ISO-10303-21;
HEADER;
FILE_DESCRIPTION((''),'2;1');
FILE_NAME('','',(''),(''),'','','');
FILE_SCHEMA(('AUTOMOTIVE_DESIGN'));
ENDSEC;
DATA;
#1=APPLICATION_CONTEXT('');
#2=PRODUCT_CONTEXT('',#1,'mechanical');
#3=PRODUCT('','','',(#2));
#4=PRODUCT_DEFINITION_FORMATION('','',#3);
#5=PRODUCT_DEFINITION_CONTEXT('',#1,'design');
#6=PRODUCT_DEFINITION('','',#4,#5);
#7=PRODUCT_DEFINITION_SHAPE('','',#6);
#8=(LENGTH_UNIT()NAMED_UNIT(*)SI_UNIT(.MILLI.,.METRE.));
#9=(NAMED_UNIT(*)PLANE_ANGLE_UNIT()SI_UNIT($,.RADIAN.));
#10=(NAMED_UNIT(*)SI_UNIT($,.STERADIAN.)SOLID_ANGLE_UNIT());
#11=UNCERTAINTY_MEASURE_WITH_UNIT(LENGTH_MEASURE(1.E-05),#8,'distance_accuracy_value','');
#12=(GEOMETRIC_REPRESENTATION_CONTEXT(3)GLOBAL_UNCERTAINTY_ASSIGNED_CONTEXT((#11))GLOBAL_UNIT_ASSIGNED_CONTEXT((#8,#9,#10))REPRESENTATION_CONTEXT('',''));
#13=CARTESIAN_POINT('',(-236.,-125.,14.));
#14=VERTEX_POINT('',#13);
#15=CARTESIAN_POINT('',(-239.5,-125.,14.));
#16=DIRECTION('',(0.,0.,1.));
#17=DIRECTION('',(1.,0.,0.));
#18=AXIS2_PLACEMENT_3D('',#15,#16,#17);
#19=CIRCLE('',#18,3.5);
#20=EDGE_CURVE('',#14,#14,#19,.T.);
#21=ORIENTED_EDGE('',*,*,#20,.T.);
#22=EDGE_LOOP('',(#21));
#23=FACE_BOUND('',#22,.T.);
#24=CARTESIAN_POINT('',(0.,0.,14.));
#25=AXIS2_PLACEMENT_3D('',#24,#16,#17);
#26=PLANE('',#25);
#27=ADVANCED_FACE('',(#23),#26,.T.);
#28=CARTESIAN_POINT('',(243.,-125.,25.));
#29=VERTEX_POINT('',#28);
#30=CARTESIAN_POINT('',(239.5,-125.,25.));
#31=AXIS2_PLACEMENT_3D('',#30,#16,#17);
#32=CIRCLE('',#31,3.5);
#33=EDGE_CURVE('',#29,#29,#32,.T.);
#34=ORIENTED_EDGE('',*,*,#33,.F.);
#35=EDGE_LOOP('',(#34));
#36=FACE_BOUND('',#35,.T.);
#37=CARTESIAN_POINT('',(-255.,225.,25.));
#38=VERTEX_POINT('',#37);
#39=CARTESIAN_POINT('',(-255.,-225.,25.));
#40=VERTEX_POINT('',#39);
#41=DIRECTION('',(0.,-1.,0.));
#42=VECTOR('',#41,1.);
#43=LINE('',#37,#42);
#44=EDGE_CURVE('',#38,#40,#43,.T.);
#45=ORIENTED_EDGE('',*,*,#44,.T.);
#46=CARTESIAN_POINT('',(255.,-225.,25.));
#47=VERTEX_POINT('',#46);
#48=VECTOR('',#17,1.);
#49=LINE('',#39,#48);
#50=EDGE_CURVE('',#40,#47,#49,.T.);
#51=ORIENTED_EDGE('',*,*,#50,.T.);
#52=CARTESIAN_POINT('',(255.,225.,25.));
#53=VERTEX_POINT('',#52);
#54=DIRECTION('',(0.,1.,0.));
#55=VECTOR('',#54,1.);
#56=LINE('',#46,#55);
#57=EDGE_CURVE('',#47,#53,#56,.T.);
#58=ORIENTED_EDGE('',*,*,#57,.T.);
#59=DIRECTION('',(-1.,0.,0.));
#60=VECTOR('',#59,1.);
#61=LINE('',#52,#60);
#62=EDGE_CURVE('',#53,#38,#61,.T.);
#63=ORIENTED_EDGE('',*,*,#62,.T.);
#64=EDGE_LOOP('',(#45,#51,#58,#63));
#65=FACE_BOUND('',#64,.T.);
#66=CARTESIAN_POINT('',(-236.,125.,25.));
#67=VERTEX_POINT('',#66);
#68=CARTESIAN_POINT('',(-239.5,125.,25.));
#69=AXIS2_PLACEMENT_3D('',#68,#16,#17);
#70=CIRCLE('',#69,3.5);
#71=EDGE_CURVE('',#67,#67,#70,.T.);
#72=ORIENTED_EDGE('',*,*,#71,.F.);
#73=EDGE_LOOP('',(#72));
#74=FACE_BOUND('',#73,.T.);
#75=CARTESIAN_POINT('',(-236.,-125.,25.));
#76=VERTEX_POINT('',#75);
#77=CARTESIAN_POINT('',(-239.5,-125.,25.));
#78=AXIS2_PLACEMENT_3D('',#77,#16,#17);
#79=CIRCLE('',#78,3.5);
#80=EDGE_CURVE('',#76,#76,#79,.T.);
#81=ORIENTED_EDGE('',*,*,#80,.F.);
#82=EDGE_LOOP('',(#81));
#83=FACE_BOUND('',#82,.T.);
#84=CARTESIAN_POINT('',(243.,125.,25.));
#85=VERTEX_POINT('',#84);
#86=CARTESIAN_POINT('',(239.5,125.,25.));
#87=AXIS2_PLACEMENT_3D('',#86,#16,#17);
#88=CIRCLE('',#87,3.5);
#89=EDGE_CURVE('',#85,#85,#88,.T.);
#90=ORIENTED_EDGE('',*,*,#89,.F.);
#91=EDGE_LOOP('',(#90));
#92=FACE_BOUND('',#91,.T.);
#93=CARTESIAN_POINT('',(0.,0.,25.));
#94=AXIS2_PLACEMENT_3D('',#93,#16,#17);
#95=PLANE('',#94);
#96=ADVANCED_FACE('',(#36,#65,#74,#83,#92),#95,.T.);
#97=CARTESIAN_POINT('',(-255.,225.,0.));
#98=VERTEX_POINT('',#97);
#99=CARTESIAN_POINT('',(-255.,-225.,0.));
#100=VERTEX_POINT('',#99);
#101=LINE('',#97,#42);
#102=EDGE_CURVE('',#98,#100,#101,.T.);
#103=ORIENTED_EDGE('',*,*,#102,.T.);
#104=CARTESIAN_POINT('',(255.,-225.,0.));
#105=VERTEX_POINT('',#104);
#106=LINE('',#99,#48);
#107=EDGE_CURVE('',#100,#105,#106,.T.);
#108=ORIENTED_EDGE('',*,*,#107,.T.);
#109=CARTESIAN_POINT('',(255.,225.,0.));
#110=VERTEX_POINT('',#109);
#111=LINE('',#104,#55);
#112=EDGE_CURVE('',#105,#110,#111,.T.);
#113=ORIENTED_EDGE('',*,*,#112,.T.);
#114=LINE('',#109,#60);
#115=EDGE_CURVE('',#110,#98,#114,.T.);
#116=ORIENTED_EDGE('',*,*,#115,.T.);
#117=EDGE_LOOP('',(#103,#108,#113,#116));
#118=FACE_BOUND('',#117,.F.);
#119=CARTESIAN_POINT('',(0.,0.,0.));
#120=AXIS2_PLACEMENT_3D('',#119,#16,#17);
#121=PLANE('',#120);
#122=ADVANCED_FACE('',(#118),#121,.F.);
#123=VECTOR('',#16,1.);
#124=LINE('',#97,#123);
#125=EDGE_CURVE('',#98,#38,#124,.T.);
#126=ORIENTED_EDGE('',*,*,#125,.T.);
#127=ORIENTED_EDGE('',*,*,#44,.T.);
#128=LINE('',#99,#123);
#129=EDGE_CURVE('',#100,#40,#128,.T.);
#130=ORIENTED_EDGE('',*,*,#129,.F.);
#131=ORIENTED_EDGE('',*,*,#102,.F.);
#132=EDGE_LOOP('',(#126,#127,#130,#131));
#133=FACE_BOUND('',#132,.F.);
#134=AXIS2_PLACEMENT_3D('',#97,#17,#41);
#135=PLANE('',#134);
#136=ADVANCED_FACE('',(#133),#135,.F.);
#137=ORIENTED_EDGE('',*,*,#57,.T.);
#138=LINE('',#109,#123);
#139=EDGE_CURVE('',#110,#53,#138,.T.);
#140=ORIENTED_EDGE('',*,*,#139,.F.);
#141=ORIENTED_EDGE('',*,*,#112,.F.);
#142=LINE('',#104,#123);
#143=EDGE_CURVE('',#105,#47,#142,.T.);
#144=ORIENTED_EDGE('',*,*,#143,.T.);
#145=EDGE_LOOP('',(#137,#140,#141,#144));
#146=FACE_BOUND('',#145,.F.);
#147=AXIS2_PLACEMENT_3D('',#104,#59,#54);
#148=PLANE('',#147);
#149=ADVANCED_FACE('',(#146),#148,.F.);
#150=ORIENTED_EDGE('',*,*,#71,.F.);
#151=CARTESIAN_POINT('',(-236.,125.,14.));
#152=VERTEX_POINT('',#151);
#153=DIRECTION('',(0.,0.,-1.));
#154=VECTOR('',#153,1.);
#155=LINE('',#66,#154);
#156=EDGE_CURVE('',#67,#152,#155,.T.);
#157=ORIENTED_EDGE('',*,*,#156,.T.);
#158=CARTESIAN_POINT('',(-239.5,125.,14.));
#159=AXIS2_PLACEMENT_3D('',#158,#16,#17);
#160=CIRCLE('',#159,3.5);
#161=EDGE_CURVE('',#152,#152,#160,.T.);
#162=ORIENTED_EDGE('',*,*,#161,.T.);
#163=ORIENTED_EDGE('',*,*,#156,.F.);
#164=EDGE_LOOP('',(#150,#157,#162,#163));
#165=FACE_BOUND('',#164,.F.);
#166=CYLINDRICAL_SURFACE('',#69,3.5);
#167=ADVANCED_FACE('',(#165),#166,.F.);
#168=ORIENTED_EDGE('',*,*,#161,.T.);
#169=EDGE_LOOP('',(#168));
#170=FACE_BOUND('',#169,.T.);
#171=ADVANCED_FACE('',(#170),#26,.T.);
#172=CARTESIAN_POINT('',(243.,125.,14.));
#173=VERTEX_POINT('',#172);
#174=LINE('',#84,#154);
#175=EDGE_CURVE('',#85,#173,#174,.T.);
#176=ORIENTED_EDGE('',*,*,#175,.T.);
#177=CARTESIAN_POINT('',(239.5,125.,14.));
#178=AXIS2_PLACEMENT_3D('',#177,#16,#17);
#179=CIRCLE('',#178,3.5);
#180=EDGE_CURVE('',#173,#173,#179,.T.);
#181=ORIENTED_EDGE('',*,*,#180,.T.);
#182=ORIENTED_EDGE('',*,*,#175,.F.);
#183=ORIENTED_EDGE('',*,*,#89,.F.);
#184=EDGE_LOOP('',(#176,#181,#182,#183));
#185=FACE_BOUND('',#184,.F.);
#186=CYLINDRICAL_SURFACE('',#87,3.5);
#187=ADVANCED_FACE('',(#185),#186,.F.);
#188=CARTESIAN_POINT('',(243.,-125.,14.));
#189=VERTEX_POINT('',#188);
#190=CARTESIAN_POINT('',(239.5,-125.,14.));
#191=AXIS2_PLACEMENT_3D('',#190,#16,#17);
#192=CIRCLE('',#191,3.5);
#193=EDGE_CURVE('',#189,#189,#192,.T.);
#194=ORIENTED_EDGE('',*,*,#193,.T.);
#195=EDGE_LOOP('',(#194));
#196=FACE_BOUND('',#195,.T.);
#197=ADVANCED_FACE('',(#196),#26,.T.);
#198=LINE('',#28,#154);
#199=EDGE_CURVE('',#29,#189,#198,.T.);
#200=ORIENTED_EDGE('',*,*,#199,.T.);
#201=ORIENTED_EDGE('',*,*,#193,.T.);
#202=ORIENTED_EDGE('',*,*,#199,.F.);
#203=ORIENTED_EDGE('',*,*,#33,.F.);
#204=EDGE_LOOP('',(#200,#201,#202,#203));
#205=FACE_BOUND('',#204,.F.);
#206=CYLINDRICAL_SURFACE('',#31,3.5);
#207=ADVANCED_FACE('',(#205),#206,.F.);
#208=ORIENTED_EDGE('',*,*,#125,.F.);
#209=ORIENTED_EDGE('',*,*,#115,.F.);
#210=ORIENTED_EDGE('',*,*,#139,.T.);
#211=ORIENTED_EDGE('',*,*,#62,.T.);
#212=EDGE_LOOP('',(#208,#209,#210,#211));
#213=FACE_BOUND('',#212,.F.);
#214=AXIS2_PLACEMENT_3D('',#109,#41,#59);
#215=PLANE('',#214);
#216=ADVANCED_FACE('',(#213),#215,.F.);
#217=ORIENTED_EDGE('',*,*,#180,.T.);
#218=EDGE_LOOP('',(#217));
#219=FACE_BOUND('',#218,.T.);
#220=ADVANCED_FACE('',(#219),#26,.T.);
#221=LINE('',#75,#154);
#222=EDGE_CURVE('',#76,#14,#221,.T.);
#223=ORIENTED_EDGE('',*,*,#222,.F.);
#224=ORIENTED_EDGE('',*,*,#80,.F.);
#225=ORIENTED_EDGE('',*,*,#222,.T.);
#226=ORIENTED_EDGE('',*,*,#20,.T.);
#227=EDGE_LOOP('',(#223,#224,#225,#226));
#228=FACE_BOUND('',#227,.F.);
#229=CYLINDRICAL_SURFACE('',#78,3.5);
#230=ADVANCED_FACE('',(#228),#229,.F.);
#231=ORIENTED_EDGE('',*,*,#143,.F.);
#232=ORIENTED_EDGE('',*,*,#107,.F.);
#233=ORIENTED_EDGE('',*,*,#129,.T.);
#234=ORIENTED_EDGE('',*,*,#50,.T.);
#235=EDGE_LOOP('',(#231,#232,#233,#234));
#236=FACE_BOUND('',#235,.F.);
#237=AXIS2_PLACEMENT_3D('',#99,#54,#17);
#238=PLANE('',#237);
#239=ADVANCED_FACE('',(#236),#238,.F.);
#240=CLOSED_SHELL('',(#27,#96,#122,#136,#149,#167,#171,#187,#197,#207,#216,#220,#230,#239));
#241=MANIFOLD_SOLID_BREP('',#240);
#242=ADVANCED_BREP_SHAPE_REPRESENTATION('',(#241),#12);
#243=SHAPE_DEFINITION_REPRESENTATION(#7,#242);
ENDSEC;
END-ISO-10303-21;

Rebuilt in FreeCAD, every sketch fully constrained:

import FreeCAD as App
import Part
import Sketcher
from FreeCAD import Vector
Q = App.Units.Quantity


def add_polygon(sketch, points):
    """Adds a closed chain of lines whose ends are joined by coincident constraints."""
    first, n = sketch.GeometryCount, len(points)
    for a, b in zip(points, points[1:] + points[:1]):
        sketch.addGeometry(Part.LineSegment(App.Vector(*a, 0), App.Vector(*b, 0)), False)
    for i in range(n):
        sketch.addConstraint(Sketcher.Constraint("Coincident", first + i, 2, first + (i + 1) % n, 1))

doc = App.newDocument("Part")
body = doc.addObject("PartDesign::Body", "Body")

sketch1 = body.newObject("Sketcher::SketchObject", "Sketch")
sketch1.AttachmentSupport = (doc.getObject("XY_Plane"), [""])
sketch1.MapMode = "FlatFace"
add_polygon(sketch1, [(-255, 225), (-255, -225), (255, -225), (255, 225)])
sketch1.addConstraint(Sketcher.Constraint("Vertical", 0))
sketch1.addConstraint(Sketcher.Constraint("Horizontal", 1))
sketch1.addConstraint(Sketcher.Constraint("Vertical", 2))
sketch1.addConstraint(Sketcher.Constraint("Horizontal", 3))
sketch1.addConstraint(Sketcher.Constraint("Symmetric", 0, 2, 2, 2, -1, 1))
sketch1.addConstraint(Sketcher.Constraint("DistanceX", 1, 1, 1, 2, Q("510 mm")))
sketch1.addConstraint(Sketcher.Constraint("DistanceY", 0, 2, 0, 1, Q("450 mm")))
pad1 = body.newObject("PartDesign::Pad", "Pad")
pad1.Profile = sketch1
pad1.Length = 25

sketch2 = body.newObject("Sketcher::SketchObject", "Sketch001")
sketch2.AttachmentSupport = (doc.getObject("XY_Plane"), [""])
sketch2.MapMode = "FlatFace"
sketch2.AttachmentOffset = App.Placement(Vector(0, 0, 25), App.Rotation())
sketch2.addGeometry(Part.Circle(Vector(-239.5, -125, 0), Vector(0, 0, 1), 3.5), False)
sketch2.addGeometry(Part.Circle(Vector(239.5, -125, 0), Vector(0, 0, 1), 3.5), False)
sketch2.addGeometry(Part.Circle(Vector(-239.5, 125, 0), Vector(0, 0, 1), 3.5), False)
sketch2.addGeometry(Part.Circle(Vector(239.5, 125, 0), Vector(0, 0, 1), 3.5), False)
sketch2.addConstraint(Sketcher.Constraint("Equal", 0, 1))
sketch2.addConstraint(Sketcher.Constraint("Equal", 1, 2))
sketch2.addConstraint(Sketcher.Constraint("Equal", 2, 3))
sketch2.addConstraint(Sketcher.Constraint("Symmetric", 1, 3, 2, 3, -1, 1))
sketch2.addConstraint(Sketcher.Constraint("Symmetric", 0, 3, 3, 3, -1, 1))
sketch2.addConstraint(Sketcher.Constraint("Symmetric", 0, 3, 1, 3, -2))
sketch2.addConstraint(Sketcher.Constraint("Diameter", 0, Q("7 mm")))
sketch2.addConstraint(Sketcher.Constraint("DistanceX", 0, 3, -1, 1, Q("239.5 mm")))
sketch2.addConstraint(Sketcher.Constraint("DistanceY", 0, 3, -1, 1, Q("125 mm")))
pocket1 = body.newObject("PartDesign::Pocket", "Pocket")
pocket1.Profile = sketch2
pocket1.Length = 11

doc.recompute()
